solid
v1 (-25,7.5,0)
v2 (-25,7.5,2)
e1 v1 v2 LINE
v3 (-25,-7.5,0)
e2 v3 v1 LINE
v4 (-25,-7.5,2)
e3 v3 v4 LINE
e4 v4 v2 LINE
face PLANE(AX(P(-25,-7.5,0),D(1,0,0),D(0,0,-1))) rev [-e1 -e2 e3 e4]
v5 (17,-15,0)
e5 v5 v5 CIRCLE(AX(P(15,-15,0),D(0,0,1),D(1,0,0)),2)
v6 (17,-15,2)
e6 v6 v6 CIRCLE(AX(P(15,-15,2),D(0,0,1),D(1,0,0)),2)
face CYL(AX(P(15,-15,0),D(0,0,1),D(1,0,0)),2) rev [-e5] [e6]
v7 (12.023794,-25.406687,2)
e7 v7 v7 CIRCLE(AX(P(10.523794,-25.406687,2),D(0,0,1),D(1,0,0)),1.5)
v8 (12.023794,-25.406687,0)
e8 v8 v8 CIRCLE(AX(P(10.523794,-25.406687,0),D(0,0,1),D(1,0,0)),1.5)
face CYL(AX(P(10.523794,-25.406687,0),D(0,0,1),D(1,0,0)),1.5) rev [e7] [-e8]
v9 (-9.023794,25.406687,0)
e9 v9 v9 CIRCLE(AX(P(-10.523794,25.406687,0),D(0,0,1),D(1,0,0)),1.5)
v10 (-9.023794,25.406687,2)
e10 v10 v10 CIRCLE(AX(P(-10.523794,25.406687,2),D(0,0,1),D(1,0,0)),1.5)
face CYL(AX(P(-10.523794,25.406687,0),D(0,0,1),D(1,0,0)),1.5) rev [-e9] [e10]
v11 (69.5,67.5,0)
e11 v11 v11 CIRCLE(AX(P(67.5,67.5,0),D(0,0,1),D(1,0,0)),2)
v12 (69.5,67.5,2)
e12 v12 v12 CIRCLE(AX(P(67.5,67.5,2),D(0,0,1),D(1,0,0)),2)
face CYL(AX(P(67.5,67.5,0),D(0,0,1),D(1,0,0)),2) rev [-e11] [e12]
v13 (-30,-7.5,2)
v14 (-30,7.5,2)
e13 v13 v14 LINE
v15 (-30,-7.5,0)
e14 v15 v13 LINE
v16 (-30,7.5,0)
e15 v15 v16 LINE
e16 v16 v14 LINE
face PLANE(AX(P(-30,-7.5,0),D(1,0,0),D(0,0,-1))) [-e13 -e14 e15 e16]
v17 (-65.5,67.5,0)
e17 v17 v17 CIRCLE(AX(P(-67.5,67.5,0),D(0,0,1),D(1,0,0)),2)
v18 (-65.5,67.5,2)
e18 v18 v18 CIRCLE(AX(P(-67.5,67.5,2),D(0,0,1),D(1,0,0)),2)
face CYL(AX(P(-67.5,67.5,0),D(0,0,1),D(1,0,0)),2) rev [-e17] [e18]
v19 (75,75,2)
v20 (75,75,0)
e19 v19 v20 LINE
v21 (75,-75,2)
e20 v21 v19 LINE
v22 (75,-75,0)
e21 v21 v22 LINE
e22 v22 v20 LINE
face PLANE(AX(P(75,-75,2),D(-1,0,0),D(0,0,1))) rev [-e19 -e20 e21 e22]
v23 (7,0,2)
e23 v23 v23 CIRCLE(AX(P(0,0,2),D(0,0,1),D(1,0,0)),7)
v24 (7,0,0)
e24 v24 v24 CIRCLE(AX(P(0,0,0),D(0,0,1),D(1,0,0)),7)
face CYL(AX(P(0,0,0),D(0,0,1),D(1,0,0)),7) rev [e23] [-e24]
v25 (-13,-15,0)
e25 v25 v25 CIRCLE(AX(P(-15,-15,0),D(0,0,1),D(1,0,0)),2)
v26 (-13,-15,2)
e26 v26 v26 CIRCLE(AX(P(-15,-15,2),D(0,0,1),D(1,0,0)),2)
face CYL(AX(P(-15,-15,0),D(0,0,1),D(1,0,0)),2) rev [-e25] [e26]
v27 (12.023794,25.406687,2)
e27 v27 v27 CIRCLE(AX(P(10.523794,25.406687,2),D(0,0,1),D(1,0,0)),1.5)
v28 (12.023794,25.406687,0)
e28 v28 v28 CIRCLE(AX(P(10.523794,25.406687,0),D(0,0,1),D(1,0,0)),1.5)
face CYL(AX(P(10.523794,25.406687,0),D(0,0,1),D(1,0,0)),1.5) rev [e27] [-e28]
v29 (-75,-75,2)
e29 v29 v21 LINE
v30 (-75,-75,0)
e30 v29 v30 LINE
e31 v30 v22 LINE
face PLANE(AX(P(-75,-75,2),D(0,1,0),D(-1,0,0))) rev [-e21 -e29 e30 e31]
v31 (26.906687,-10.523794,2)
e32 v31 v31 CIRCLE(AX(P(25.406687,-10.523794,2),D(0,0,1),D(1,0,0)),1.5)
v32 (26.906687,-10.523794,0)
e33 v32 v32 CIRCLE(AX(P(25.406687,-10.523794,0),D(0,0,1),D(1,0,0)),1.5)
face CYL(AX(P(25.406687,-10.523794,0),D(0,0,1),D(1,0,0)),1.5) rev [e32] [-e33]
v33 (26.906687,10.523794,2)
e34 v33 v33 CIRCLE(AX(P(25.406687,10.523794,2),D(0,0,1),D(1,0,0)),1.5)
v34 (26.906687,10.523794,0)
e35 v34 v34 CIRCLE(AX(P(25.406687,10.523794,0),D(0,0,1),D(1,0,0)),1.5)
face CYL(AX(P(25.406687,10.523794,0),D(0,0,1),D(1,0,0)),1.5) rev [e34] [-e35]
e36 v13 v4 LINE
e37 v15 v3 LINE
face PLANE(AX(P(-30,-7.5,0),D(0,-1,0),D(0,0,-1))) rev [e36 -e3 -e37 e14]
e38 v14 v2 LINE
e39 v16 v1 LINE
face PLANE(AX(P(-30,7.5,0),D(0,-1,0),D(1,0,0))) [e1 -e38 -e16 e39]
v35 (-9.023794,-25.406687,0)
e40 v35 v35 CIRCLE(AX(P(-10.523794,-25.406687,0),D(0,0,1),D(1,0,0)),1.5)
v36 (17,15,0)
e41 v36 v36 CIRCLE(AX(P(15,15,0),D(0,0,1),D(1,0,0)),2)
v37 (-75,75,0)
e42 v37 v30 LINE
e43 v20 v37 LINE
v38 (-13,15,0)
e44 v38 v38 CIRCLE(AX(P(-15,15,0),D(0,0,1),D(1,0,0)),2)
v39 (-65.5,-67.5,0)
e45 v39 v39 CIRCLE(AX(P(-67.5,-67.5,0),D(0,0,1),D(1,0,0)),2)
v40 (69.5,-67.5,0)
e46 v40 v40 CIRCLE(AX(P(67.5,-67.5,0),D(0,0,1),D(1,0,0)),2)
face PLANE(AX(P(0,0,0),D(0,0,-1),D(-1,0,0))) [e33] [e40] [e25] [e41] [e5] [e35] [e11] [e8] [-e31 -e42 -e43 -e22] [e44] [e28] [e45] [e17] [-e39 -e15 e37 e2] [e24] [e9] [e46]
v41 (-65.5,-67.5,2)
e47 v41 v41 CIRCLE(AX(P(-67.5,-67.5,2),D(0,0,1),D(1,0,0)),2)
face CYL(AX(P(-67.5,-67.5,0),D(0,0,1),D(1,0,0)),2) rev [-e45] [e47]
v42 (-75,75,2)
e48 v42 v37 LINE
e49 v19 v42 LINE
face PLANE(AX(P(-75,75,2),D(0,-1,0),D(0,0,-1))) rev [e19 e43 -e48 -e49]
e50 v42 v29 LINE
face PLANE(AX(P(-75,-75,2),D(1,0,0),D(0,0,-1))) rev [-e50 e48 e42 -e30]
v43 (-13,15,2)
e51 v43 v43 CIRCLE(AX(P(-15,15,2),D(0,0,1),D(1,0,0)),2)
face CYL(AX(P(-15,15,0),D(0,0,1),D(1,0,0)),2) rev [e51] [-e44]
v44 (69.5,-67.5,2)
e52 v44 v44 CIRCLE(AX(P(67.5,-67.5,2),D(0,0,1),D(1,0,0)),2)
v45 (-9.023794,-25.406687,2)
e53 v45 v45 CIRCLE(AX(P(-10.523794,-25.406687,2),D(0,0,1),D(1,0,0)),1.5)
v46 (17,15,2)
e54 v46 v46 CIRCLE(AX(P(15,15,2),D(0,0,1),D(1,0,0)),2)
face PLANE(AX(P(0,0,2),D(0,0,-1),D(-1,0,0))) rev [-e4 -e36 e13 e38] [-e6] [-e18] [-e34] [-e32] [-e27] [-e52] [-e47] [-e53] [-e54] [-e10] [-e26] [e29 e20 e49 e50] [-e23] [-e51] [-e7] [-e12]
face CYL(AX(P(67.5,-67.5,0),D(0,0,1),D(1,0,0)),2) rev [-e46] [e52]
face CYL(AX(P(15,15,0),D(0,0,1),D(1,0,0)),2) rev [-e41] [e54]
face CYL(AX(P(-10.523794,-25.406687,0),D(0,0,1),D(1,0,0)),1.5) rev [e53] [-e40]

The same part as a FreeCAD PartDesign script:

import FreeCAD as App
import Part
import Sketcher


def add_polygon(sketch, points):
    """Adds a closed chain of lines whose ends are joined by coincident constraints."""
    first, n = sketch.GeometryCount, len(points)
    for a, b in zip(points, points[1:] + points[:1]):
        sketch.addGeometry(Part.LineSegment(App.Vector(*a, 0), App.Vector(*b, 0)), False)
    for i in range(n):
        sketch.addConstraint(Sketcher.Constraint("Coincident", first + i, 2, first + (i + 1) % n, 1))

doc = App.newDocument("Part")
body = doc.addObject("PartDesign::Body", "Body")

# Sketch on XY plane
sketch1 = body.newObject("Sketcher::SketchObject", "Sketch")
sketch1.AttachmentSupport = (doc.getObject("XY_Plane"), [""])
sketch1.MapMode = "FlatFace"
add_polygon(sketch1, [(-75, 75), (-75, -75), (75, -75), (75, 75)])  # lines 0-3
sketch1.addConstraint([
    Sketcher.Constraint("Vertical", 0),
    Sketcher.Constraint("Horizontal", 1),
    Sketcher.Constraint("Vertical", 2),
    Sketcher.Constraint("Horizontal", 3),
    Sketcher.Constraint("Symmetric", 0, 2, 2, 2, -1, 1),
    Sketcher.Constraint("Equal", 3, 0),
    Sketcher.Constraint("DistanceX", 1, 1, 1, 2, 150.0),
])
pad1 = body.newObject("PartDesign::Pad", "Pad")
pad1.Profile = sketch1
pad1.Length = 2

# Sketch on XY plane
sketch2 = body.newObject("Sketcher::SketchObject", "Sketch001")
sketch2.AttachmentSupport = (doc.getObject("XY_Plane"), [""])
sketch2.MapMode = "FlatFace"
sketch2.AttachmentOffset = App.Placement(App.Vector(0, 0, 2), App.Rotation())
sketch2.addGeometry(Part.Circle(App.Vector(-67.5, -67.5, 0), App.Vector(0, 0, 1), 2), False)  # 0
sketch2.addGeometry(Part.Circle(App.Vector(67.5, -67.5, 0), App.Vector(0, 0, 1), 2), False)  # 1
sketch2.addGeometry(Part.Circle(App.Vector(67.5, 67.5, 0), App.Vector(0, 0, 1), 2), False)  # 2
sketch2.addGeometry(Part.Circle(App.Vector(-67.5, 67.5, 0), App.Vector(0, 0, 1), 2), False)  # 3
sketch2.addGeometry(Part.Circle(App.Vector(0, 0, 0), App.Vector(0, 0, 1), 7), False)  # 4
sketch2.addGeometry(Part.Circle(App.Vector(-15, -15, 0), App.Vector(0, 0, 1), 2), False)  # 5
sketch2.addGeometry(Part.Circle(App.Vector(15, -15, 0), App.Vector(0, 0, 1), 2), False)  # 6
sketch2.addGeometry(Part.Circle(App.Vector(15, 15, 0), App.Vector(0, 0, 1), 2), False)  # 7
sketch2.addGeometry(Part.Circle(App.Vector(-15, 15, 0), App.Vector(0, 0, 1), 2), False)  # 8
sketch2.addGeometry(Part.Circle(App.Vector(-10.5, 25.4, 0), App.Vector(0, 0, 1), 1.5), False)  # 9
sketch2.addGeometry(Part.Circle(App.Vector(10.5, 25.4, 0), App.Vector(0, 0, 1), 1.5), False)  # 10
sketch2.addGeometry(Part.Circle(App.Vector(25.4, 10.5, 0), App.Vector(0, 0, 1), 1.5), False)  # 11
sketch2.addGeometry(Part.Circle(App.Vector(25.4, -10.5, 0), App.Vector(0, 0, 1), 1.5), False)  # 12
sketch2.addGeometry(Part.Circle(App.Vector(10.5, -25.4, 0), App.Vector(0, 0, 1), 1.5), False)  # 13
sketch2.addGeometry(Part.Circle(App.Vector(-10.5, -25.4, 0), App.Vector(0, 0, 1), 1.5), False)  # 14
add_polygon(sketch2, [(-30, 7.5), (-30, -7.5), (-25, -7.5), (-25, 7.5)])  # lines 15-18
sketch2.addConstraint([
    Sketcher.Constraint("Vertical", 15),
    Sketcher.Constraint("Horizontal", 16),
    Sketcher.Constraint("Vertical", 17),
    Sketcher.Constraint("Horizontal", 18),
    Sketcher.Constraint("Coincident", 4, 3, -1, 1),
    Sketcher.Constraint("Equal", 0, 1),
    Sketcher.Constraint("Equal", 1, 2),
    Sketcher.Constraint("Equal", 2, 3),
    Sketcher.Constraint("Equal", 3, 5),
    Sketcher.Constraint("Equal", 5, 6),
    Sketcher.Constraint("Equal", 6, 7),
    Sketcher.Constraint("Equal", 7, 8),
    Sketcher.Constraint("Equal", 9, 10),
    Sketcher.Constraint("Equal", 10, 11),
    Sketcher.Constraint("Equal", 11, 12),
    Sketcher.Constraint("Equal", 12, 13),
    Sketcher.Constraint("Equal", 13, 14),
    Sketcher.Constraint("Symmetric", 0, 3, 2, 3, -1, 1),
    Sketcher.Constraint("Symmetric", 1, 3, 3, 3, -1, 1),
    Sketcher.Constraint("Symmetric", 5, 3, 7, 3, -1, 1),
    Sketcher.Constraint("Symmetric", 6, 3, 8, 3, -1, 1),
    Sketcher.Constraint("Symmetric", 9, 3, 13, 3, -1, 1),
    Sketcher.Constraint("Symmetric", 10, 3, 14, 3, -1, 1),
    Sketcher.Constraint("Symmetric", 0, 3, 1, 3, -2),
    Sketcher.Constraint("Symmetric", 5, 3, 6, 3, -2),
    Sketcher.Constraint("Symmetric", 9, 3, 10, 3, -2),
    Sketcher.Constraint("Symmetric", 11, 3, 12, 3, -1),
    Sketcher.Constraint("Diameter", 0, 4.0),
    Sketcher.Constraint("Diameter", 4, 14.0),
    Sketcher.Constraint("Diameter", 9, 3.0),
    Sketcher.Constraint("DistanceX", 16, 1, 16, 2, 5.0),
    Sketcher.Constraint("DistanceY", 15, 2, 15, 1, 15.0),
    Sketcher.Constraint("DistanceX", 5, 3, -1, 1, 15.0),
    Sketcher.Constraint("DistanceY", 5, 3, -1, 1, 15.0),
    Sketcher.Constraint("DistanceX", 15, 2, -1, 1, 30.0),
    Sketcher.Constraint("DistanceX", 0, 3, 1, 3, 135.0),
    Sketcher.Constraint("DistanceY", 1, 3, 2, 3, 135.0),
    Sketcher.Constraint("DistanceY", 15, 2, -1, 1, 7.5),
    Sketcher.Constraint("DistanceX", 9, 3, 10, 3, 21.047589),
    Sketcher.Constraint("DistanceX", 9, 3, 11, 3, 35.930482),
    Sketcher.Constraint("DistanceY", 12, 3, 11, 3, 21.047589),
    Sketcher.Constraint("DistanceY", 12, 3, 10, 3, 35.930482),
])
pocket1 = body.newObject("PartDesign::Pocket", "Pocket")
pocket1.Profile = sketch2
pocket1.Length = 2

doc.recompute()
